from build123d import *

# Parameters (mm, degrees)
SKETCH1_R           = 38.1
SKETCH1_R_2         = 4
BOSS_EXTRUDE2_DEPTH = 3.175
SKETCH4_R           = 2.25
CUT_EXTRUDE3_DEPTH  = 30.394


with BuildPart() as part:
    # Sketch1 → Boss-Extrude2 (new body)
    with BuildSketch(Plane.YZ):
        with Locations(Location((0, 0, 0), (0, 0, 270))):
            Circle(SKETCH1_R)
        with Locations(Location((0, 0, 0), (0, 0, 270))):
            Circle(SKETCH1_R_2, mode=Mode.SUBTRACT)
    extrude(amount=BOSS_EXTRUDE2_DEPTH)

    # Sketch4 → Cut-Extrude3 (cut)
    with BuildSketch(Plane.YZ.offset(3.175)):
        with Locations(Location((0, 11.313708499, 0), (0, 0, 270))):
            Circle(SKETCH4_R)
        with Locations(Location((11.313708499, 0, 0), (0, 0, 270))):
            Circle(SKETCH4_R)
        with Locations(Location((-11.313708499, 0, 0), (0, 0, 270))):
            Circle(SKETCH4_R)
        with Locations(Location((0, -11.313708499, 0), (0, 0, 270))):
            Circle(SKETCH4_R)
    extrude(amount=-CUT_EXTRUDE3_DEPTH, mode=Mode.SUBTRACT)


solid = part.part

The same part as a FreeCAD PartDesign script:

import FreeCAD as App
import Part
import Sketcher
from FreeCAD import Vector
Q = App.Units.Quantity

doc = App.newDocument("Part")
body = doc.addObject("PartDesign::Body", "Body")

sketch1 = body.newObject("Sketcher::SketchObject", "Sketch")
sketch1.AttachmentSupport = (doc.getObject("YZ_Plane"), [""])
sketch1.MapMode = "FlatFace"
sketch1.addGeometry(Part.Circle(Vector(0, 0, 0), Vector(0, 0, 1), 38.1), False)
sketch1.addGeometry(Part.Circle(Vector(0, 0, 0), Vector(0, 0, 1), 4), False)
sketch1.addConstraint(Sketcher.Constraint("Coincident", 0, 3, -1, 1))
sketch1.addConstraint(Sketcher.Constraint("Coincident", 1, 3, -1, 1))
sketch1.addConstraint(Sketcher.Constraint("Diameter", 1, Q("8 mm")))
sketch1.addConstraint(Sketcher.Constraint("Diameter", 0, Q("76.2 mm")))
pad1 = body.newObject("PartDesign::Pad", "Pad")
pad1.Profile = sketch1
pad1.Length = 3.175

sketch2 = body.newObject("Sketcher::SketchObject", "Sketch001")
sketch2.AttachmentSupport = (doc.getObject("YZ_Plane"), [""])
sketch2.MapMode = "FlatFace"
sketch2.AttachmentOffset = App.Placement(Vector(0, 0, 3.175), App.Rotation())
sketch2.addGeometry(Part.Circle(Vector(0, 11.313708, 0), Vector(0, 0, 1), 2.25), False)
sketch2.addGeometry(Part.Circle(Vector(11.313708, 0, 0), Vector(0, 0, 1), 2.25), False)
sketch2.addGeometry(Part.Circle(Vector(-11.313708, 0, 0), Vector(0, 0, 1), 2.25), False)
sketch2.addGeometry(Part.Circle(Vector(0, -11.313708, 0), Vector(0, 0, 1), 2.25), False)
sketch2.addConstraint(Sketcher.Constraint("Equal", 0, 1))
sketch2.addConstraint(Sketcher.Constraint("Equal", 1, 2))
sketch2.addConstraint(Sketcher.Constraint("Equal", 2, 3))
sketch2.addConstraint(Sketcher.Constraint("Symmetric", 1, 3, 2, 3, -1, 1))
sketch2.addConstraint(Sketcher.Constraint("Symmetric", 0, 3, 3, 3, -1, 1))
sketch2.addConstraint(Sketcher.Constraint("PointOnObject", 0, 3, -2))
sketch2.addConstraint(Sketcher.Constraint("PointOnObject", 1, 3, -1))
sketch2.addConstraint(Sketcher.Constraint("Diameter", 0, Q("4.5 mm")))
sketch2.addConstraint(Sketcher.Constraint("DistanceY", -1, 1, 0, 3, Q("11.313708 mm")))
sketch2.addConstraint(Sketcher.Constraint("DistanceX", -1, 1, 1, 3, Q("11.313708 mm")))
pocket1 = body.newObject("PartDesign::Pocket", "Pocket")
pocket1.Profile = sketch2
pocket1.Length = 30.394

doc.recompute()
